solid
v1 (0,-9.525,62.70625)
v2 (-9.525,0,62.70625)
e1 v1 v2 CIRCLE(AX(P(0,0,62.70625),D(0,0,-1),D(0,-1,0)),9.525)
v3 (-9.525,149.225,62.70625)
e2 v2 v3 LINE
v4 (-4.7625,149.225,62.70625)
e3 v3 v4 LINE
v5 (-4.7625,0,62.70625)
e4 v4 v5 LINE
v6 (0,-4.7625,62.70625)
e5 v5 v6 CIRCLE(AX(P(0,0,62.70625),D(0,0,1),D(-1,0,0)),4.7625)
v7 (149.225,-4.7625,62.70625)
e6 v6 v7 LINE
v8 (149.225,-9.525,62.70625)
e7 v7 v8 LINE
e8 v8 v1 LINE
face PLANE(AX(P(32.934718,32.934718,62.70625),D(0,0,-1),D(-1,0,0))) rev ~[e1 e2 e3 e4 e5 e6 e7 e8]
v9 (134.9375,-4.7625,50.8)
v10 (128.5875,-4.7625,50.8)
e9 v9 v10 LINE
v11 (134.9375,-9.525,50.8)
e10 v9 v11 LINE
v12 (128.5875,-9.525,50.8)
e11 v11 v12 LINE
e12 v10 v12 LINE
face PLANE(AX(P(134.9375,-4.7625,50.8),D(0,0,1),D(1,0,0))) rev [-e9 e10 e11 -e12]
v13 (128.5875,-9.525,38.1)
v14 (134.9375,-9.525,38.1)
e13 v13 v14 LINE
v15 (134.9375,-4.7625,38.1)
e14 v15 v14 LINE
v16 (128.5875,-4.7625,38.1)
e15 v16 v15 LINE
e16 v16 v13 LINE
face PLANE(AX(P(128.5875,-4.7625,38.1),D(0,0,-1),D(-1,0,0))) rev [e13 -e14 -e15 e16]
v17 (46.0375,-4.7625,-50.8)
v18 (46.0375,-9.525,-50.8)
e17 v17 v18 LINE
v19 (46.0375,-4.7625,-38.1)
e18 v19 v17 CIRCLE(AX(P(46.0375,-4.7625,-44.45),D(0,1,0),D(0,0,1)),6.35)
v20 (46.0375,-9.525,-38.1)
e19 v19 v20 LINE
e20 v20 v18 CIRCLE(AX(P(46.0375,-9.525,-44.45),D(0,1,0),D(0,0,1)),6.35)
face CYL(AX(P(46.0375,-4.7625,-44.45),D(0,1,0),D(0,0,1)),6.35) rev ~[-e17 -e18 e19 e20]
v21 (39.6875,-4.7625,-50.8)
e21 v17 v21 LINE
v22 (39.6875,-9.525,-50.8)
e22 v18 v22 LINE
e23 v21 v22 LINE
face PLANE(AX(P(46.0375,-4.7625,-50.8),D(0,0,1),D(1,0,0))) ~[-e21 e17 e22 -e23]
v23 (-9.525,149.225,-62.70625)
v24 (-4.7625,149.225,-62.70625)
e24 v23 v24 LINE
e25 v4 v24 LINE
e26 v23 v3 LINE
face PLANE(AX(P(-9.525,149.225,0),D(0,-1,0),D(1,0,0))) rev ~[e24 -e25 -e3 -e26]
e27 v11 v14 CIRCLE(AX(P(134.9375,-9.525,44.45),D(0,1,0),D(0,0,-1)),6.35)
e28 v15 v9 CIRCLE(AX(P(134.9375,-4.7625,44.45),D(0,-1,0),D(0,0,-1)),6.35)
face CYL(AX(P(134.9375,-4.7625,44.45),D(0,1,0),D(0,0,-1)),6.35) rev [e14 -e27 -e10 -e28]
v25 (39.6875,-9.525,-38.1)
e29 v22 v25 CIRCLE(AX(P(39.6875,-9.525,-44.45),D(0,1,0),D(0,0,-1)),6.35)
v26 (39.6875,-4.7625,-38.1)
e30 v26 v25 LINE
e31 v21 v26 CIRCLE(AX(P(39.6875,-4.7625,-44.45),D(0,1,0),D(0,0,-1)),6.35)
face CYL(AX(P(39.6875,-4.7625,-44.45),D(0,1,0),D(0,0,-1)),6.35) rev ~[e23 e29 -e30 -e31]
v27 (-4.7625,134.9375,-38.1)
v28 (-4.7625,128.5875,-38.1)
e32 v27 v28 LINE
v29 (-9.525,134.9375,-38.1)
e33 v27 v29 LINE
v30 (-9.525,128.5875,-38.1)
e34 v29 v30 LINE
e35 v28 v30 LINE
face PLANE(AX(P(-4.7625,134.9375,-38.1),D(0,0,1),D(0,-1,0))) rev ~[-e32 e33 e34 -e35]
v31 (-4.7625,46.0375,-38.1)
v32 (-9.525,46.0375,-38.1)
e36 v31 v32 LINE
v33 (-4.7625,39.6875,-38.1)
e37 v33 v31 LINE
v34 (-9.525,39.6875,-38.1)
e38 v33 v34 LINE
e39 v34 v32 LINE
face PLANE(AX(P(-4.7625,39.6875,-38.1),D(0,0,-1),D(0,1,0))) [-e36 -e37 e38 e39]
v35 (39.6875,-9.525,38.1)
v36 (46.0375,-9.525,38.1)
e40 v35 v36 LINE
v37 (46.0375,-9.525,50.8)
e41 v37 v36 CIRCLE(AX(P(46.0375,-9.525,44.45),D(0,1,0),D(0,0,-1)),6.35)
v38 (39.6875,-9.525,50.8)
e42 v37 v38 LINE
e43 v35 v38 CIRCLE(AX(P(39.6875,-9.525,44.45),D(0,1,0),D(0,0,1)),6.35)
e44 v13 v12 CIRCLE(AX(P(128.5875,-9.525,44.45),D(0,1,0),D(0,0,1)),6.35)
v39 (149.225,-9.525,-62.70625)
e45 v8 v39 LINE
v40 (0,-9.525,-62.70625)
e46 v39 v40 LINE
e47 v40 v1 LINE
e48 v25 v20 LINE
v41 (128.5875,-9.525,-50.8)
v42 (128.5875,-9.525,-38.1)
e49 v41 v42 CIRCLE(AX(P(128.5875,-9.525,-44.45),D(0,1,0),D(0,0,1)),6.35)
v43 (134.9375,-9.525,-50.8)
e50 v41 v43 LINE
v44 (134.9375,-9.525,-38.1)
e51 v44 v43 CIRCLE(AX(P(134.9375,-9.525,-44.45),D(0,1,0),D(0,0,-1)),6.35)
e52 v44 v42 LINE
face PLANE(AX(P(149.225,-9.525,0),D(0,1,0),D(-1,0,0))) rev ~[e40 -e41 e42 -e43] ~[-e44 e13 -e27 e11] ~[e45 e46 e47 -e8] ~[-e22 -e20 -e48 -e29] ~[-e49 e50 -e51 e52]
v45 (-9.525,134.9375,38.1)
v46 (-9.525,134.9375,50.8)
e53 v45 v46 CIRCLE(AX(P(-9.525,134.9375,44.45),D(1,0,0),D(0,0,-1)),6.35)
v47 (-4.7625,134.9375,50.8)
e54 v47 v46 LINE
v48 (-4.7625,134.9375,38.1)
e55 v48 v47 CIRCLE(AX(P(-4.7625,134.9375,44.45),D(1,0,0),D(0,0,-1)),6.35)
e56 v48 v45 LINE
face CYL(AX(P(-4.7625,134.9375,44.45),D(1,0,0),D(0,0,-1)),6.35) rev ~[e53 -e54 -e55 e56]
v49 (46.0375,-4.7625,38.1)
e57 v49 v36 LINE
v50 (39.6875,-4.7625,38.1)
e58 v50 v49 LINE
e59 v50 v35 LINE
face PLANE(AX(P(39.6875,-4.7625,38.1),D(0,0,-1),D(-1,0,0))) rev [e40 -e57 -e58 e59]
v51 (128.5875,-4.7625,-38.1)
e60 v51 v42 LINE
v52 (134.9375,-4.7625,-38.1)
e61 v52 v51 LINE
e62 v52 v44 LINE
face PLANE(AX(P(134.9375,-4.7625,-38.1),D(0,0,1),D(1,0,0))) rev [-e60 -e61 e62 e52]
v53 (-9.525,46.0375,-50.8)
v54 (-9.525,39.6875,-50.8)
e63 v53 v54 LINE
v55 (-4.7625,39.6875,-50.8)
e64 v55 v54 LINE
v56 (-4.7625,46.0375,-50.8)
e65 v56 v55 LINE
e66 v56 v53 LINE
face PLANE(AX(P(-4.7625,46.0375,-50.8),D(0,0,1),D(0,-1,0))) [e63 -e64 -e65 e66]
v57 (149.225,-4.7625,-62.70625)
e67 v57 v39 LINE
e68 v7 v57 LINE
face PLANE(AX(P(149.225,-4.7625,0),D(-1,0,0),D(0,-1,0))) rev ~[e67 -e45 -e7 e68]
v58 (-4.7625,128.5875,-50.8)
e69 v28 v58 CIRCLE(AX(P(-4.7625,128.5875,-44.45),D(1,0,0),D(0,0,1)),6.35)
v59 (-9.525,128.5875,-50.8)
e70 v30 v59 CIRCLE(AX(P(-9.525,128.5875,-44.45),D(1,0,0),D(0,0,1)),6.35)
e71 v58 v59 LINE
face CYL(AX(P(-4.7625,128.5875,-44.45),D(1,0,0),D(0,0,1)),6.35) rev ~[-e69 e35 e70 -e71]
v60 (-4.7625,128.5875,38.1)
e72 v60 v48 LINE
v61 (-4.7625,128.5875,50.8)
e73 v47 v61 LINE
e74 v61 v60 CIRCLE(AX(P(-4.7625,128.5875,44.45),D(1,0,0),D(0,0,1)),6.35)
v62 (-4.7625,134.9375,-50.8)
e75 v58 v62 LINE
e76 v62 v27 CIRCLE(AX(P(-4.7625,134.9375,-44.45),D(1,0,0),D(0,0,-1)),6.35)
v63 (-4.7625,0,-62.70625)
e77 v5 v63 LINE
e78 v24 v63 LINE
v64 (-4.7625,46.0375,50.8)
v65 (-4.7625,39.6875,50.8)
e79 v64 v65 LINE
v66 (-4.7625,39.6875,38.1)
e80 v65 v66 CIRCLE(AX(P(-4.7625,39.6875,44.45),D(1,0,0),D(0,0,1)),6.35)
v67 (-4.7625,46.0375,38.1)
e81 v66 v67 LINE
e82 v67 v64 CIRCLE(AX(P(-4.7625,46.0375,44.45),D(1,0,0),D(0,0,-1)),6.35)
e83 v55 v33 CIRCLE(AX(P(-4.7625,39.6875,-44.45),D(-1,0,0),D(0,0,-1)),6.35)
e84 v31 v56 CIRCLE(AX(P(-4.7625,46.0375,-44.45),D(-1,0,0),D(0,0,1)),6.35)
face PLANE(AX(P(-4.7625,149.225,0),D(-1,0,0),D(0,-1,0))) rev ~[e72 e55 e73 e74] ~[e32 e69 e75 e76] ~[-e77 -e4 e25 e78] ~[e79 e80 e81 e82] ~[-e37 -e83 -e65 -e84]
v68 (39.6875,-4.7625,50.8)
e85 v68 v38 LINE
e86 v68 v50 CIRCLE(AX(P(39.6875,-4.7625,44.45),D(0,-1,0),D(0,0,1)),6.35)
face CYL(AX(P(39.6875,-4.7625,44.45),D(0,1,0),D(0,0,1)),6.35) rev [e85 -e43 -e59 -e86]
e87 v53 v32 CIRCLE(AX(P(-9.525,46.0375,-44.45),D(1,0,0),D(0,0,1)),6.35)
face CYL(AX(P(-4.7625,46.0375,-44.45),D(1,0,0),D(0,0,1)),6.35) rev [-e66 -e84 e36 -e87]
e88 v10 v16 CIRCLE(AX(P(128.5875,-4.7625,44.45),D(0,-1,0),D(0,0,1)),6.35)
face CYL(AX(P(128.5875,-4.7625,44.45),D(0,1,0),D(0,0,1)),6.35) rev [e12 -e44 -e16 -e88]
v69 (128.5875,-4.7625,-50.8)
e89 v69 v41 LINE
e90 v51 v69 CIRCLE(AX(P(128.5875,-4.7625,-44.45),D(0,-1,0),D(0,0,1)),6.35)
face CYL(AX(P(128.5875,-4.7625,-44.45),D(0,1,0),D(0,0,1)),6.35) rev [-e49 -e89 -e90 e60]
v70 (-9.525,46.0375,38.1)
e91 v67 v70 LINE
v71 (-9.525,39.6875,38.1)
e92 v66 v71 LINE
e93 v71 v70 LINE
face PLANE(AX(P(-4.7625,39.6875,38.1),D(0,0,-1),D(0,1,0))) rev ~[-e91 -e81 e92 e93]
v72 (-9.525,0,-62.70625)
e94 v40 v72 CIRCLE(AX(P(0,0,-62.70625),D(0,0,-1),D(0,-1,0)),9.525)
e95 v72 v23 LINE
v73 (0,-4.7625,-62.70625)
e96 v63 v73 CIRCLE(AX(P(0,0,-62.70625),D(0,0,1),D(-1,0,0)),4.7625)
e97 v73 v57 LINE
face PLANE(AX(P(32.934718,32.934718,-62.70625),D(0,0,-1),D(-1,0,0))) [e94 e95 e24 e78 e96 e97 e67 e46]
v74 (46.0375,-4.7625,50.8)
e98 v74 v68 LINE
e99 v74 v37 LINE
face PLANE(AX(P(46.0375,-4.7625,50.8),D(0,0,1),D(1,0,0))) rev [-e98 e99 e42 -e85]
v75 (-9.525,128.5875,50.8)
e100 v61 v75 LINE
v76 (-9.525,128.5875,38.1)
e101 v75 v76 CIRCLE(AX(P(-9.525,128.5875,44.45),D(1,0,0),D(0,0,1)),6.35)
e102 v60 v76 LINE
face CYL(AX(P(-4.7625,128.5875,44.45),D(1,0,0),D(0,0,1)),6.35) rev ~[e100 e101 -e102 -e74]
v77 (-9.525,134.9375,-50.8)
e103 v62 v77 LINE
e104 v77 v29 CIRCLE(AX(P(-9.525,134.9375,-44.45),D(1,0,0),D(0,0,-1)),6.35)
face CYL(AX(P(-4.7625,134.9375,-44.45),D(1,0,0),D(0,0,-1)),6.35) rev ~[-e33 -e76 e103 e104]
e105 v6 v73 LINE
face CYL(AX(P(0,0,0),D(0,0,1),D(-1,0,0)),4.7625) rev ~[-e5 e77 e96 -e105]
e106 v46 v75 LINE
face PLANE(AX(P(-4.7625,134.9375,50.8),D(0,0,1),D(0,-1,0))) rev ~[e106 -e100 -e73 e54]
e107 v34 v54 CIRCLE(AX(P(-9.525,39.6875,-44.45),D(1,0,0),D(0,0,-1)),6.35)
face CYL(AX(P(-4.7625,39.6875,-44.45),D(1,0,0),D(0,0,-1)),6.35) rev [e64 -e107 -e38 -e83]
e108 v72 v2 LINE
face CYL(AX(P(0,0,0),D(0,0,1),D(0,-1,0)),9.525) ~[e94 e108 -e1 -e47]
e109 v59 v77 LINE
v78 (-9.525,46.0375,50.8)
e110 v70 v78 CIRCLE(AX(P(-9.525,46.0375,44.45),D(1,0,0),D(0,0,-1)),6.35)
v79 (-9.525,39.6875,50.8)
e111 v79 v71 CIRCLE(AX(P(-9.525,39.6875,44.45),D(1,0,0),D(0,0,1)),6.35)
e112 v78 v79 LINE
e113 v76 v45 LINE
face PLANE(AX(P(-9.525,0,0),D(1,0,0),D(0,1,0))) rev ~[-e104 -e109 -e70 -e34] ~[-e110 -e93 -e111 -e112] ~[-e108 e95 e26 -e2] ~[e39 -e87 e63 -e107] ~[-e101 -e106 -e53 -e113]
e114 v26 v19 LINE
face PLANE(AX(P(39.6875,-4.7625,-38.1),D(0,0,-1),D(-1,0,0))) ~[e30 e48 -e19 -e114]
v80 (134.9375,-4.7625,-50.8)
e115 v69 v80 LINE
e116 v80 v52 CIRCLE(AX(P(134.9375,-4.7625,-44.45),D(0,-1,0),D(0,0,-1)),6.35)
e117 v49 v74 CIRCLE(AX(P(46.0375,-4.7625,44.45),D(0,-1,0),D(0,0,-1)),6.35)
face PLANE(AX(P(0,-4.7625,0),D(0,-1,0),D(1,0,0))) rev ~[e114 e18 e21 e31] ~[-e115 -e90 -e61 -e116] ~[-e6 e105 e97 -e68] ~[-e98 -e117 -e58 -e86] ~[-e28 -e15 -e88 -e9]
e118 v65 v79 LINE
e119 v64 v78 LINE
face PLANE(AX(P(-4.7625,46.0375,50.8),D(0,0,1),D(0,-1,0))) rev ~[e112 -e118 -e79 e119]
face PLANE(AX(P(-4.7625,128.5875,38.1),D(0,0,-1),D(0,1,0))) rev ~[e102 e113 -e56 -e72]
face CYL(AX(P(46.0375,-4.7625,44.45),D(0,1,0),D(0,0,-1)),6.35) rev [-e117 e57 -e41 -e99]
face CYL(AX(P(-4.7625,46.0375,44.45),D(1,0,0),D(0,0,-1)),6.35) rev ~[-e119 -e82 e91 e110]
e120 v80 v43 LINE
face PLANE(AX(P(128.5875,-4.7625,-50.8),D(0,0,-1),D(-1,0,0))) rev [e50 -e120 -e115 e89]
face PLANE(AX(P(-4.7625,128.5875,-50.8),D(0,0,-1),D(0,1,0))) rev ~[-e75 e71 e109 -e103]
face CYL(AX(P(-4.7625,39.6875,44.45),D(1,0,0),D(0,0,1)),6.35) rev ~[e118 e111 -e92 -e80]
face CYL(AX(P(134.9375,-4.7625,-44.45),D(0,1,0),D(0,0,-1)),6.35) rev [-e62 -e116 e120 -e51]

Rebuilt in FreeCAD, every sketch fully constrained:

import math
import FreeCAD as App
import Part
import Sketcher
from FreeCAD import Vector
Q = App.Units.Quantity

doc = App.newDocument("Part")
body = doc.addObject("PartDesign::Body", "Body")

# Sketch on XY plane
sketch1 = body.newObject("Sketcher::SketchObject", "Sketch")
sketch1.AttachmentSupport = (doc.getObject("XY_Plane"), [""])
sketch1.MapMode = "FlatFace"
sketch1.addGeometry([
    Part.LineSegment(Vector(-4.8, 149.2, 0), Vector(-9.5, 149.2, 0)),  # 0
    Part.LineSegment(Vector(-9.5, 149.2, 0), Vector(-9.5, 0, 0)),  # 1
    Part.ArcOfCircle(Part.Circle(Vector(0, 0, 0), Vector(0, 0, 1), 9.5), math.radians(180), math.radians(270)),  # 2
    Part.LineSegment(Vector(0, -9.5, 0), Vector(149.2, -9.5, 0)),  # 3
    Part.LineSegment(Vector(149.2, -9.5, 0), Vector(149.2, -4.8, 0)),  # 4
    Part.LineSegment(Vector(149.2, -4.8, 0), Vector(0, -4.8, 0)),  # 5
    Part.ArcOfCircle(Part.Circle(Vector(0, 0, 0), Vector(0, 0, 1), 4.8), math.radians(-180), math.radians(-90)),  # 6
    Part.LineSegment(Vector(-4.8, 0, 0), Vector(-4.8, 149.2, 0)),  # 7
], False)
sketch1.addConstraint([
    Sketcher.Constraint("Coincident", 0, 2, 1, 1),
    Sketcher.Constraint("Tangent", 1, 2, 2, 1),
    Sketcher.Constraint("Tangent", 2, 2, 3, 1),
    Sketcher.Constraint("Coincident", 3, 2, 4, 1),
    Sketcher.Constraint("Coincident", 4, 2, 5, 1),
    Sketcher.Constraint("Tangent", 5, 2, 6, 2),
    Sketcher.Constraint("Tangent", 6, 1, 7, 1),
    Sketcher.Constraint("Coincident", 7, 2, 0, 1),
    Sketcher.Constraint("Horizontal", 0),
    Sketcher.Constraint("Vertical", 1),
    Sketcher.Constraint("Horizontal", 3),
    Sketcher.Constraint("Vertical", 4),
    Sketcher.Constraint("Horizontal", 5),
    Sketcher.Constraint("Vertical", 7),
    Sketcher.Constraint("Coincident", 2, 3, -1, 1),
    Sketcher.Constraint("Coincident", 6, 3, -1, 1),
    Sketcher.Constraint("Equal", 5, 1),
    Sketcher.Constraint("Radius", 2, Q("0.375 in")),
    Sketcher.Constraint("Radius", 6, Q("0.1875 in")),
    Sketcher.Constraint("DistanceX", 3, 1, 3, 2, Q("5.875 in")),
])
pad1 = body.newObject("PartDesign::Pad", "Pad")
pad1.Profile = sketch1
pad1.Length = Q("4.9375 in")
pad1.Midplane = True

# Sketch on YZ plane
sketch2 = body.newObject("Sketcher::SketchObject", "Sketch001")
sketch2.AttachmentSupport = (doc.getObject("YZ_Plane"), [""])
sketch2.MapMode = "FlatFace"
sketch2.AttachmentOffset = App.Placement(Vector(0, 0, -0.1875 * 25.4), App.Rotation())
sketch2.addGeometry([
    Part.LineSegment(Vector(135, 51, 0), Vector(129, 51, 0)),  # 0
    Part.ArcOfCircle(Part.Circle(Vector(129, 44, 0), Vector(0, 0, 1), 6), math.radians(90), math.radians(270)),  # 1
    Part.LineSegment(Vector(129, 38, 0), Vector(135, 38, 0)),  # 2
    Part.ArcOfCircle(Part.Circle(Vector(135, 44, 0), Vector(0, 0, 1), 6), math.radians(-90), math.radians(90)),  # 3
    Part.LineSegment(Vector(46, 51, 0), Vector(40, 51, 0)),  # 4
    Part.ArcOfCircle(Part.Circle(Vector(40, 44, 0), Vector(0, 0, 1), 6), math.radians(90), math.radians(270)),  # 5
    Part.LineSegment(Vector(40, 38, 0), Vector(46, 38, 0)),  # 6
    Part.ArcOfCircle(Part.Circle(Vector(46, 44, 0), Vector(0, 0, 1), 6), math.radians(-90), math.radians(90)),  # 7
    Part.LineSegment(Vector(46, -38, 0), Vector(40, -38, 0)),  # 8
    Part.ArcOfCircle(Part.Circle(Vector(40, -44, 0), Vector(0, 0, 1), 6), math.radians(90), math.radians(270)),  # 9
    Part.LineSegment(Vector(40, -51, 0), Vector(46, -51, 0)),  # 10
    Part.ArcOfCircle(Part.Circle(Vector(46, -44, 0), Vector(0, 0, 1), 6), math.radians(-90), math.radians(90)),  # 11
    Part.LineSegment(Vector(135, -38, 0), Vector(129, -38, 0)),  # 12
    Part.ArcOfCircle(Part.Circle(Vector(129, -44, 0), Vector(0, 0, 1), 6), math.radians(90), math.radians(270)),  # 13
    Part.LineSegment(Vector(129, -51, 0), Vector(135, -51, 0)),  # 14
    Part.ArcOfCircle(Part.Circle(Vector(135, -44, 0), Vector(0, 0, 1), 6), math.radians(-90), math.radians(90)),  # 15
], False)
sketch2.addConstraint([
    Sketcher.Constraint("Tangent", 0, 2, 1, 1),
    Sketcher.Constraint("Tangent", 1, 2, 2, 1),
    Sketcher.Constraint("Tangent", 2, 2, 3, 1),
    Sketcher.Constraint("Tangent", 3, 2, 0, 1),
    Sketcher.Constraint("Tangent", 4, 2, 5, 1),
    Sketcher.Constraint("Tangent", 5, 2, 6, 1),
    Sketcher.Constraint("Tangent", 6, 2, 7, 1),
    Sketcher.Constraint("Tangent", 7, 2, 4, 1),
    Sketcher.Constraint("Tangent", 8, 2, 9, 1),
    Sketcher.Constraint("Tangent", 9, 2, 10, 1),
    Sketcher.Constraint("Tangent", 10, 2, 11, 1),
    Sketcher.Constraint("Tangent", 11, 2, 8, 1),
    Sketcher.Constraint("Tangent", 12, 2, 13, 1),
    Sketcher.Constraint("Tangent", 13, 2, 14, 1),
    Sketcher.Constraint("Tangent", 14, 2, 15, 1),
    Sketcher.Constraint("Tangent", 15, 2, 12, 1),
    Sketcher.Constraint("Horizontal", 0),
    Sketcher.Constraint("Horizontal", 2),
    Sketcher.Constraint("Horizontal", 4),
    Sketcher.Constraint("Horizontal", 6),
    Sketcher.Constraint("Horizontal", 8),
    Sketcher.Constraint("Horizontal", 10),
    Sketcher.Constraint("Horizontal", 12),
    Sketcher.Constraint("Horizontal", 14),
    Sketcher.Constraint("Equal", 3, 5),
    Sketcher.Constraint("Equal", 7, 9),
    Sketcher.Constraint("Equal", 11, 13),
    Sketcher.Constraint("Symmetric", 5, 3, 9, 3, -1),
    Sketcher.Constraint("Symmetric", 1, 3, 13, 3, -1),
    Sketcher.Constraint("Horizontal", 3, 3, 5, 3),
    Sketcher.Constraint("Vertical", 7, 3, 11, 3),
    Sketcher.Constraint("Vertical", 3, 3, 15, 3),
    Sketcher.Constraint("Equal", 2, 4),
    Sketcher.Constraint("Radius", 1, Q("0.25 in")),
    Sketcher.Constraint("DistanceY", -1, 1, 0, 2, Q("2 in")),
    Sketcher.Constraint("DistanceX", 0, 2, 0, 1, Q("0.25 in")),
    Sketcher.Constraint("DistanceX", 5, 3, 1, 3, Q("3.5 in")),
    Sketcher.Constraint("DistanceX", -1, 1, 1, 3, Q("5.0625 in")),
])
pocket1 = body.newObject("PartDesign::Pocket", "Pocket")
pocket1.Profile = sketch2
pocket1.Type = "ThroughAll"
doc.recompute()

datumplane = body.newObject("PartDesign::Plane", "DatumPlane")
datumplane.Placement = App.Placement(Vector(0, 0, 0), App.Rotation(Vector(-0.707106781, -0.707106781, 0), Vector(0, 0, -1), Vector(0.707106781, -0.707106781, 0), "ZXY"))
mirrored = body.newObject("PartDesign::Mirrored", "Mirrored")
mirrored.Originals = [pocket1]
mirrored.MirrorPlane = (datumplane, [""])
body.Tip = mirrored

doc.recompute()
